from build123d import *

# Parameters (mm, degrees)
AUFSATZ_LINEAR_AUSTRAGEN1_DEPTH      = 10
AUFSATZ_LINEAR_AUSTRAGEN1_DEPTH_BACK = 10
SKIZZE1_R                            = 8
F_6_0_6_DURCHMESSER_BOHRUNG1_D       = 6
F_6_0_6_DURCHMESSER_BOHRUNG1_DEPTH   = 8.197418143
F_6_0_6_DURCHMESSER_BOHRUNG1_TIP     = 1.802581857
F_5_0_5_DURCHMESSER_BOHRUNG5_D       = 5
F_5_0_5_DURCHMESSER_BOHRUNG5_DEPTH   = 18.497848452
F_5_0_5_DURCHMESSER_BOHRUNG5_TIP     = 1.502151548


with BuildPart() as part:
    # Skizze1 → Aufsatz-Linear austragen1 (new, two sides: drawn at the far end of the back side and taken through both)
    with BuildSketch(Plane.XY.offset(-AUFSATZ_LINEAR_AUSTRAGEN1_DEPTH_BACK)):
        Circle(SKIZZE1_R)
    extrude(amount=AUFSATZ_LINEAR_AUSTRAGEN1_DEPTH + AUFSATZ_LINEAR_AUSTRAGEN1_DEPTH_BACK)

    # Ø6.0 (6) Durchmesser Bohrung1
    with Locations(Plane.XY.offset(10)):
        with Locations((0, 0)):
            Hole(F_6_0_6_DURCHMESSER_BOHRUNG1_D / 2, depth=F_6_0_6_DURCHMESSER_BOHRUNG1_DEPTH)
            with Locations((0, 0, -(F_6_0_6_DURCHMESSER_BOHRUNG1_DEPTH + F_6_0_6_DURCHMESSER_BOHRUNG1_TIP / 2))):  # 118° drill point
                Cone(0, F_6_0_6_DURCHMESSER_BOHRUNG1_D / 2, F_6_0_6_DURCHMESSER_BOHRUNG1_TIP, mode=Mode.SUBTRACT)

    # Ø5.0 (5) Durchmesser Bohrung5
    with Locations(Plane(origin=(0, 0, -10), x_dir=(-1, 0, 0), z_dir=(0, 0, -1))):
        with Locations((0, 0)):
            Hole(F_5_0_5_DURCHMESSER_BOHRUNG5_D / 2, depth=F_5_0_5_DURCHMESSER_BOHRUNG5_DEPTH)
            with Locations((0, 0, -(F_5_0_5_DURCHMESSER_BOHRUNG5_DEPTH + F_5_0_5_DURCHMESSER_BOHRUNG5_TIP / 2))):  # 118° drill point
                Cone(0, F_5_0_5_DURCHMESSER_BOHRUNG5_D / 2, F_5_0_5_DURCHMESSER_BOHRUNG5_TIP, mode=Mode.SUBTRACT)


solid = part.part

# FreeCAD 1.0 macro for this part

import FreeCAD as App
import Part
import Sketcher

doc = App.newDocument("Part")
params = doc.addObject("Spreadsheet::Sheet", "Params")
for row, (alias, value) in enumerate([
    ("sketch1_diameter", "16 mm"),
    ("pad1_length", "10 mm"),
    ("pad1_length2", "10 mm"),
    ("sketch2_diameter", "6 mm"),
    ("hole_diameter", "6 mm"),
    ("hole_depth", "8.197418 mm"),
    ("sketch3_diameter", "5 mm"),
    ("hole2_diameter", "5 mm"),
    ("hole2_depth", "18.497848 mm"),
], start=1):
    params.set(f"A{row}", alias)
    params.set(f"B{row}", "=" + value)
    params.setAlias(f"B{row}", alias)

body = doc.addObject("PartDesign::Body", "Body")

# Sketch on XY plane
sketch1 = doc.addObject("Sketcher::SketchObject", "Sketch")
body.addObject(sketch1)
sketch1.AttachmentSupport = (doc.XY_Plane, [""])
sketch1.MapMode = "FlatFace"
sketch1.addGeometry(Part.Circle(App.Vector(0, 0, 0), App.Vector(0, 0, 1), 8), False)
sketch1.addConstraint([
    Sketcher.Constraint("Coincident", 0, 3, -1, 1),
    Sketcher.Constraint("Diameter", 0, 16.0),
])
sketch1.setExpression("Constraints[1]", "Params.sketch1_diameter")
pad1 = doc.addObject("PartDesign::Pad", "Pad")
body.addObject(pad1)
pad1.Profile = sketch1
pad1.Type = "TwoLengths"
pad1.setExpression("Length", "Params.pad1_length")
pad1.setExpression("Length2", "Params.pad1_length2")

# Sketch on XY plane
sketch2 = doc.addObject("Sketcher::SketchObject", "Sketch001")
body.addObject(sketch2)
sketch2.AttachmentSupport = (doc.XY_Plane, [""])
sketch2.MapMode = "FlatFace"
sketch2.AttachmentOffset = App.Placement(App.Vector(0, 0, 10), App.Rotation())
sketch2.addGeometry(Part.Circle(App.Vector(0, 0, 0), App.Vector(0, 0, 1), 3), False)
sketch2.addConstraint([
    Sketcher.Constraint("Coincident", 0, 3, -1, 1),
    Sketcher.Constraint("Diameter", 0, 6.0),
])
sketch2.setExpression("Constraints[1]", "Params.sketch2_diameter")
doc.recompute()
hole = doc.addObject("PartDesign::Hole", "Hole")
body.addObject(hole)
hole.Profile = sketch2
hole.ThreadType = "None"
hole.setExpression("Diameter", "Params.hole_diameter")
hole.DepthType = "Dimension"
hole.setExpression("Depth", "Params.hole_depth")
hole.DrillPoint = "Angled"
hole.DrillPointAngle = 118

# Sketch on XY plane
sketch3 = doc.addObject("Sketcher::SketchObject", "Sketch002")
body.addObject(sketch3)
sketch3.AttachmentSupport = (doc.XY_Plane, [""])
sketch3.MapMode = "FlatFace"
sketch3.AttachmentOffset = App.Placement(App.Vector(0, 0, -10), App.Rotation())
sketch3.addGeometry(Part.Circle(App.Vector(0, 0, 0), App.Vector(0, 0, 1), 2.5), False)
sketch3.addConstraint([
    Sketcher.Constraint("Coincident", 0, 3, -1, 1),
    Sketcher.Constraint("Diameter", 0, 5.0),
])
sketch3.setExpression("Constraints[1]", "Params.sketch3_diameter")
doc.recompute()
hole2 = doc.addObject("PartDesign::Hole", "Hole001")
body.addObject(hole2)
hole2.Profile = sketch3
hole2.ThreadType = "None"
hole2.setExpression("Diameter", "Params.hole2_diameter")
hole2.DepthType = "Dimension"
hole2.setExpression("Depth", "Params.hole2_depth")
hole2.DrillPoint = "Angled"
hole2.DrillPointAngle = 118
hole2.Reversed = True

doc.recompute()
